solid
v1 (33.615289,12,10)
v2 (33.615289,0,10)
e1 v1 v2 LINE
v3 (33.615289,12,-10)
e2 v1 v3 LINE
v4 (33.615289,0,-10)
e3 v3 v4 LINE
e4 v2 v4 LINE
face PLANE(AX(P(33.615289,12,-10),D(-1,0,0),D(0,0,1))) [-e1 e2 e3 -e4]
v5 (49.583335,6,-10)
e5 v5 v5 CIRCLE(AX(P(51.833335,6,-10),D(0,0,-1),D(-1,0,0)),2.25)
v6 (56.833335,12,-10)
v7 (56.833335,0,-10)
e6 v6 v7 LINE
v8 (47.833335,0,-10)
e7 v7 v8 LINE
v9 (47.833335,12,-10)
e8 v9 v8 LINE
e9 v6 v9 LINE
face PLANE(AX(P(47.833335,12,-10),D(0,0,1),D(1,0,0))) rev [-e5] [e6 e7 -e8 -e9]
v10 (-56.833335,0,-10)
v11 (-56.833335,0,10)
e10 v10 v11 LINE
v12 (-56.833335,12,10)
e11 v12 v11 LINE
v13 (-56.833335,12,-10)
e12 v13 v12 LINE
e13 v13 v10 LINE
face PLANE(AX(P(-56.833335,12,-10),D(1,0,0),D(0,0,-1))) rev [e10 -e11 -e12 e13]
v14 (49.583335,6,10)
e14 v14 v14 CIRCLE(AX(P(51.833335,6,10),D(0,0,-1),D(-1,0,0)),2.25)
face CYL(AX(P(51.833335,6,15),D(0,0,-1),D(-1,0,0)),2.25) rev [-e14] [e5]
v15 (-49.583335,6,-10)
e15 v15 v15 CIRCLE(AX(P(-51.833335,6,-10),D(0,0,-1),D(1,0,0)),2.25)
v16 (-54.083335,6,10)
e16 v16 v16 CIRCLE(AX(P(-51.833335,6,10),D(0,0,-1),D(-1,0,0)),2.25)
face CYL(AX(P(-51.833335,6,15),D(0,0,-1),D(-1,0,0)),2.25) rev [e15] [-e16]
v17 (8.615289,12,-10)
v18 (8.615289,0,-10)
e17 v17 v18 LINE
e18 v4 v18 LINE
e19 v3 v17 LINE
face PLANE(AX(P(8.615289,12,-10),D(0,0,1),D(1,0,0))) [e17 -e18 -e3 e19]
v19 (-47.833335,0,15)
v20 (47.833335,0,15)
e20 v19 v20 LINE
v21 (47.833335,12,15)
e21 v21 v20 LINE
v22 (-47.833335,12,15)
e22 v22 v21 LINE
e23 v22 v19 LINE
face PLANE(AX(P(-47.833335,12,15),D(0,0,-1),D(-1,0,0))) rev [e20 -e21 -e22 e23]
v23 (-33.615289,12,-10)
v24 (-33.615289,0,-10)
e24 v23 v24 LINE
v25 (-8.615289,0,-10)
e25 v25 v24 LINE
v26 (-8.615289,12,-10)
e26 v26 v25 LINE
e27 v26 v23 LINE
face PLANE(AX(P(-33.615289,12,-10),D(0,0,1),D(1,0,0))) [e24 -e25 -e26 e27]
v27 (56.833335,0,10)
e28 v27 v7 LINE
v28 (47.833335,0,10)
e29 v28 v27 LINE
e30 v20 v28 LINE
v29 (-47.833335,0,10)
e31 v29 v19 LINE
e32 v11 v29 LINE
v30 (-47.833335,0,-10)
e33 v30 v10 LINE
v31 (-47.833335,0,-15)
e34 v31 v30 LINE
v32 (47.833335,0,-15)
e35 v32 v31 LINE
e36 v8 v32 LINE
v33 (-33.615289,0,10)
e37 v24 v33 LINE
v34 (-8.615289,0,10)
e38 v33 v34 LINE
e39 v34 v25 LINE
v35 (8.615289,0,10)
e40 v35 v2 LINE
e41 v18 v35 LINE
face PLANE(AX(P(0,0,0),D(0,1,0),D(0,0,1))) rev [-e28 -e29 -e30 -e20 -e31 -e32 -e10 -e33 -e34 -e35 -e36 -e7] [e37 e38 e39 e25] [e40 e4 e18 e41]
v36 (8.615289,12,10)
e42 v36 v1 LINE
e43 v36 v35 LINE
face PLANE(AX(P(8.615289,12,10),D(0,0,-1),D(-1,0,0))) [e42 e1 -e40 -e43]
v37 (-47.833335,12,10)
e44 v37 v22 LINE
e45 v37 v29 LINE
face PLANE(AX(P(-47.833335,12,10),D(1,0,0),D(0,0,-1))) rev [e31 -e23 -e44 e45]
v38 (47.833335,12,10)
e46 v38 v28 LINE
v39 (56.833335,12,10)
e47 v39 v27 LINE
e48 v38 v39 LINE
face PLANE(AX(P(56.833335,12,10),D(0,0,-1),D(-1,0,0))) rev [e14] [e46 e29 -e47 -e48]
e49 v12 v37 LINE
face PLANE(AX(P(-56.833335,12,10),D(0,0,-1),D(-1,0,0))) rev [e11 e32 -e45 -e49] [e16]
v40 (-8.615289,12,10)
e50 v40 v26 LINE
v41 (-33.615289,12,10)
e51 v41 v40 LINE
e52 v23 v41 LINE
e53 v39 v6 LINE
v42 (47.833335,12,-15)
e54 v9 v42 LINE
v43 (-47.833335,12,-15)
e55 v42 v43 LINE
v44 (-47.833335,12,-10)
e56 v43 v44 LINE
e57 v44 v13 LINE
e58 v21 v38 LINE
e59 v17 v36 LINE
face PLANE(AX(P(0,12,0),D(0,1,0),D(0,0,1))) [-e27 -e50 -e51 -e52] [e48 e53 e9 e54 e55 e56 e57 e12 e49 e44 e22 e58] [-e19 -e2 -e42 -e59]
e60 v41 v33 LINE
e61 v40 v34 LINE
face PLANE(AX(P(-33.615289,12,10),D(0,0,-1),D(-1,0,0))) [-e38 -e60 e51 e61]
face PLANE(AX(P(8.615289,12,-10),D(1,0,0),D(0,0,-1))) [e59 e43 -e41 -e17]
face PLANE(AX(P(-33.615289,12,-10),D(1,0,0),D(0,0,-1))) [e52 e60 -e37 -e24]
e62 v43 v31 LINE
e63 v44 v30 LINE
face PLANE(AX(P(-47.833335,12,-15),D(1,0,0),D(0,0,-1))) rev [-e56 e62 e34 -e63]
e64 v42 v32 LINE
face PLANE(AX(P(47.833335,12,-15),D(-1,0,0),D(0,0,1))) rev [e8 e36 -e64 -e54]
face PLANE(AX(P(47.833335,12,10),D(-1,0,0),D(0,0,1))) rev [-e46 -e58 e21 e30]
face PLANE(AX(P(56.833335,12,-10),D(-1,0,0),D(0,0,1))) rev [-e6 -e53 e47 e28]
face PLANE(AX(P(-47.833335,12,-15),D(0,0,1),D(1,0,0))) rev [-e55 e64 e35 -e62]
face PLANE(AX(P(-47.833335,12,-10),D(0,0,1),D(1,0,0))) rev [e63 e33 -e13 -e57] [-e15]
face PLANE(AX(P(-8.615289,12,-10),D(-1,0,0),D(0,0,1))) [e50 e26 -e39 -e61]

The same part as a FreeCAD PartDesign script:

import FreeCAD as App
import Part
import Sketcher

V = App.Vector

doc = App.newDocument("Part")
body = doc.addObject("PartDesign::Body", "Body")

# Sketch on XZ plane
sketch1 = body.newObject("Sketcher::SketchObject", "Sketch")
sketch1.AttachmentSupport = (doc.getObject("XZ_Plane"), [""])
sketch1.MapMode = "FlatFace"
sketch1.addGeometry([
    Part.LineSegment(V(47.833335, -15, 0), V(-47.833335, -15, 0)),  # 0
    Part.LineSegment(V(-47.833335, -15, 0), V(-47.833335, -10, 0)),  # 1
    Part.LineSegment(V(-47.833335, -10, 0), V(-56.833335, -10, 0)),  # 2
    Part.LineSegment(V(-56.833335, -10, 0), V(-56.833335, 10, 0)),  # 3
    Part.LineSegment(V(-56.833335, 10, 0), V(-47.833335, 10, 0)),  # 4
    Part.LineSegment(V(-47.833335, 10, 0), V(-47.833335, 15, 0)),  # 5
    Part.LineSegment(V(-47.833335, 15, 0), V(47.833335, 15, 0)),  # 6
    Part.LineSegment(V(47.833335, 15, 0), V(47.833335, 10, 0)),  # 7
    Part.LineSegment(V(47.833335, 10, 0), V(56.833335, 10, 0)),  # 8
    Part.LineSegment(V(56.833335, 10, 0), V(56.833335, -10, 0)),  # 9
    Part.LineSegment(V(56.833335, -10, 0), V(47.833335, -10, 0)),  # 10
    Part.LineSegment(V(47.833335, -10, 0), V(47.833335, -15, 0)),  # 11
    Part.LineSegment(V(8.615289, 10, 0), V(8.615289, -10, 0)),  # 12
    Part.LineSegment(V(8.615289, -10, 0), V(33.615289, -10, 0)),  # 13
    Part.LineSegment(V(33.615289, -10, 0), V(33.615289, 10, 0)),  # 14
    Part.LineSegment(V(33.615289, 10, 0), V(8.615289, 10, 0)),  # 15
    Part.LineSegment(V(-33.615289, 10, 0), V(-33.615289, -10, 0)),  # 16
    Part.LineSegment(V(-33.615289, -10, 0), V(-8.615289, -10, 0)),  # 17
    Part.LineSegment(V(-8.615289, -10, 0), V(-8.615289, 10, 0)),  # 18
    Part.LineSegment(V(-8.615289, 10, 0), V(-33.615289, 10, 0)),  # 19
], False)
sketch1.addConstraint([
    Sketcher.Constraint("Coincident", 0, 2, 1, 1),
    Sketcher.Constraint("Coincident", 1, 2, 2, 1),
    Sketcher.Constraint("Coincident", 2, 2, 3, 1),
    Sketcher.Constraint("Coincident", 3, 2, 4, 1),
    Sketcher.Constraint("Coincident", 4, 2, 5, 1),
    Sketcher.Constraint("Coincident", 5, 2, 6, 1),
    Sketcher.Constraint("Coincident", 6, 2, 7, 1),
    Sketcher.Constraint("Coincident", 7, 2, 8, 1),
    Sketcher.Constraint("Coincident", 8, 2, 9, 1),
    Sketcher.Constraint("Coincident", 9, 2, 10, 1),
    Sketcher.Constraint("Coincident", 10, 2, 11, 1),
    Sketcher.Constraint("Coincident", 11, 2, 0, 1),
    Sketcher.Constraint("Coincident", 12, 2, 13, 1),
    Sketcher.Constraint("Coincident", 13, 2, 14, 1),
    Sketcher.Constraint("Coincident", 14, 2, 15, 1),
    Sketcher.Constraint("Coincident", 15, 2, 12, 1),
    Sketcher.Constraint("Coincident", 16, 2, 17, 1),
    Sketcher.Constraint("Coincident", 17, 2, 18, 1),
    Sketcher.Constraint("Coincident", 18, 2, 19, 1),
    Sketcher.Constraint("Coincident", 19, 2, 16, 1),
    Sketcher.Constraint("Horizontal", 0),
    Sketcher.Constraint("Vertical", 1),
    Sketcher.Constraint("Horizontal", 2),
    Sketcher.Constraint("Vertical", 3),
    Sketcher.Constraint("Horizontal", 4),
    Sketcher.Constraint("Vertical", 5),
    Sketcher.Constraint("Horizontal", 6),
    Sketcher.Constraint("Vertical", 7),
    Sketcher.Constraint("Horizontal", 8),
    Sketcher.Constraint("Vertical", 9),
    Sketcher.Constraint("Horizontal", 10),
    Sketcher.Constraint("Vertical", 11),
    Sketcher.Constraint("Vertical", 12),
    Sketcher.Constraint("Horizontal", 13),
    Sketcher.Constraint("Vertical", 14),
    Sketcher.Constraint("Horizontal", 15),
    Sketcher.Constraint("Vertical", 16),
    Sketcher.Constraint("Horizontal", 17),
    Sketcher.Constraint("Vertical", 18),
    Sketcher.Constraint("Horizontal", 19),
    Sketcher.Constraint("Symmetric", 0, 2, 6, 2, -1, 1),
    Sketcher.Constraint("Symmetric", 2, 2, 8, 2, -1, 1),
    Sketcher.Constraint("Symmetric", 4, 2, 10, 2, -1, 1),
    Sketcher.Constraint("Symmetric", 14, 2, 16, 2, -1, 1),
    Sketcher.Constraint("Symmetric", 12, 2, 18, 2, -1, 1),
    Sketcher.Constraint("Symmetric", 4, 2, 7, 2, -2),
    Sketcher.Constraint("Horizontal", 10, 2, 12, 2),
    Sketcher.Constraint("Horizontal", 8, 2, 14, 2),
    Sketcher.Constraint("DistanceX", 2, 2, 2, 1, 9.0),
    Sketcher.Constraint("DistanceX", 13, 1, 13, 2, 25.0),
    Sketcher.Constraint("DistanceY", 1, 1, 1, 2, 5.0),
    Sketcher.Constraint("DistanceY", 3, 1, 3, 2, 20.0),
    Sketcher.Constraint("DistanceX", 0, 2, 0, 1, 95.66667),
    Sketcher.Constraint("DistanceX", -1, 1, 12, 2, 8.615289),
])
pad1 = body.newObject("PartDesign::Pad", "Pad")
pad1.Profile = sketch1
pad1.Length = 12
pad1.Reversed = True

# Sketch on XY plane
sketch2 = body.newObject("Sketcher::SketchObject", "Sketch001")
sketch2.AttachmentSupport = (doc.getObject("XY_Plane"), [""])
sketch2.MapMode = "FlatFace"
sketch2.AttachmentOffset = App.Placement(V(0, 0, -10), App.Rotation())
sketch2.addGeometry([
    Part.Circle(V(51.833335, 6, 0), V(0, 0, 1), 2.25),
    Part.Circle(V(-51.833335, 6, 0), V(0, 0, 1), 2.25),
], False)
sketch2.addConstraint([
    Sketcher.Constraint("Equal", 0, 1),
    Sketcher.Constraint("Symmetric", 0, 3, 1, 3, -2),
    Sketcher.Constraint("Diameter", 0, 4.5),
    Sketcher.Constraint("DistanceY", -1, 1, 0, 3, 6.0),
    Sketcher.Constraint("DistanceX", 1, 3, 0, 3, 103.66667),
])
pocket1 = body.newObject("PartDesign::Pocket", "Pocket")
pocket1.Profile = sketch2
pocket1.Type = "ThroughAll"
pocket1.Reversed = True

doc.recompute()
